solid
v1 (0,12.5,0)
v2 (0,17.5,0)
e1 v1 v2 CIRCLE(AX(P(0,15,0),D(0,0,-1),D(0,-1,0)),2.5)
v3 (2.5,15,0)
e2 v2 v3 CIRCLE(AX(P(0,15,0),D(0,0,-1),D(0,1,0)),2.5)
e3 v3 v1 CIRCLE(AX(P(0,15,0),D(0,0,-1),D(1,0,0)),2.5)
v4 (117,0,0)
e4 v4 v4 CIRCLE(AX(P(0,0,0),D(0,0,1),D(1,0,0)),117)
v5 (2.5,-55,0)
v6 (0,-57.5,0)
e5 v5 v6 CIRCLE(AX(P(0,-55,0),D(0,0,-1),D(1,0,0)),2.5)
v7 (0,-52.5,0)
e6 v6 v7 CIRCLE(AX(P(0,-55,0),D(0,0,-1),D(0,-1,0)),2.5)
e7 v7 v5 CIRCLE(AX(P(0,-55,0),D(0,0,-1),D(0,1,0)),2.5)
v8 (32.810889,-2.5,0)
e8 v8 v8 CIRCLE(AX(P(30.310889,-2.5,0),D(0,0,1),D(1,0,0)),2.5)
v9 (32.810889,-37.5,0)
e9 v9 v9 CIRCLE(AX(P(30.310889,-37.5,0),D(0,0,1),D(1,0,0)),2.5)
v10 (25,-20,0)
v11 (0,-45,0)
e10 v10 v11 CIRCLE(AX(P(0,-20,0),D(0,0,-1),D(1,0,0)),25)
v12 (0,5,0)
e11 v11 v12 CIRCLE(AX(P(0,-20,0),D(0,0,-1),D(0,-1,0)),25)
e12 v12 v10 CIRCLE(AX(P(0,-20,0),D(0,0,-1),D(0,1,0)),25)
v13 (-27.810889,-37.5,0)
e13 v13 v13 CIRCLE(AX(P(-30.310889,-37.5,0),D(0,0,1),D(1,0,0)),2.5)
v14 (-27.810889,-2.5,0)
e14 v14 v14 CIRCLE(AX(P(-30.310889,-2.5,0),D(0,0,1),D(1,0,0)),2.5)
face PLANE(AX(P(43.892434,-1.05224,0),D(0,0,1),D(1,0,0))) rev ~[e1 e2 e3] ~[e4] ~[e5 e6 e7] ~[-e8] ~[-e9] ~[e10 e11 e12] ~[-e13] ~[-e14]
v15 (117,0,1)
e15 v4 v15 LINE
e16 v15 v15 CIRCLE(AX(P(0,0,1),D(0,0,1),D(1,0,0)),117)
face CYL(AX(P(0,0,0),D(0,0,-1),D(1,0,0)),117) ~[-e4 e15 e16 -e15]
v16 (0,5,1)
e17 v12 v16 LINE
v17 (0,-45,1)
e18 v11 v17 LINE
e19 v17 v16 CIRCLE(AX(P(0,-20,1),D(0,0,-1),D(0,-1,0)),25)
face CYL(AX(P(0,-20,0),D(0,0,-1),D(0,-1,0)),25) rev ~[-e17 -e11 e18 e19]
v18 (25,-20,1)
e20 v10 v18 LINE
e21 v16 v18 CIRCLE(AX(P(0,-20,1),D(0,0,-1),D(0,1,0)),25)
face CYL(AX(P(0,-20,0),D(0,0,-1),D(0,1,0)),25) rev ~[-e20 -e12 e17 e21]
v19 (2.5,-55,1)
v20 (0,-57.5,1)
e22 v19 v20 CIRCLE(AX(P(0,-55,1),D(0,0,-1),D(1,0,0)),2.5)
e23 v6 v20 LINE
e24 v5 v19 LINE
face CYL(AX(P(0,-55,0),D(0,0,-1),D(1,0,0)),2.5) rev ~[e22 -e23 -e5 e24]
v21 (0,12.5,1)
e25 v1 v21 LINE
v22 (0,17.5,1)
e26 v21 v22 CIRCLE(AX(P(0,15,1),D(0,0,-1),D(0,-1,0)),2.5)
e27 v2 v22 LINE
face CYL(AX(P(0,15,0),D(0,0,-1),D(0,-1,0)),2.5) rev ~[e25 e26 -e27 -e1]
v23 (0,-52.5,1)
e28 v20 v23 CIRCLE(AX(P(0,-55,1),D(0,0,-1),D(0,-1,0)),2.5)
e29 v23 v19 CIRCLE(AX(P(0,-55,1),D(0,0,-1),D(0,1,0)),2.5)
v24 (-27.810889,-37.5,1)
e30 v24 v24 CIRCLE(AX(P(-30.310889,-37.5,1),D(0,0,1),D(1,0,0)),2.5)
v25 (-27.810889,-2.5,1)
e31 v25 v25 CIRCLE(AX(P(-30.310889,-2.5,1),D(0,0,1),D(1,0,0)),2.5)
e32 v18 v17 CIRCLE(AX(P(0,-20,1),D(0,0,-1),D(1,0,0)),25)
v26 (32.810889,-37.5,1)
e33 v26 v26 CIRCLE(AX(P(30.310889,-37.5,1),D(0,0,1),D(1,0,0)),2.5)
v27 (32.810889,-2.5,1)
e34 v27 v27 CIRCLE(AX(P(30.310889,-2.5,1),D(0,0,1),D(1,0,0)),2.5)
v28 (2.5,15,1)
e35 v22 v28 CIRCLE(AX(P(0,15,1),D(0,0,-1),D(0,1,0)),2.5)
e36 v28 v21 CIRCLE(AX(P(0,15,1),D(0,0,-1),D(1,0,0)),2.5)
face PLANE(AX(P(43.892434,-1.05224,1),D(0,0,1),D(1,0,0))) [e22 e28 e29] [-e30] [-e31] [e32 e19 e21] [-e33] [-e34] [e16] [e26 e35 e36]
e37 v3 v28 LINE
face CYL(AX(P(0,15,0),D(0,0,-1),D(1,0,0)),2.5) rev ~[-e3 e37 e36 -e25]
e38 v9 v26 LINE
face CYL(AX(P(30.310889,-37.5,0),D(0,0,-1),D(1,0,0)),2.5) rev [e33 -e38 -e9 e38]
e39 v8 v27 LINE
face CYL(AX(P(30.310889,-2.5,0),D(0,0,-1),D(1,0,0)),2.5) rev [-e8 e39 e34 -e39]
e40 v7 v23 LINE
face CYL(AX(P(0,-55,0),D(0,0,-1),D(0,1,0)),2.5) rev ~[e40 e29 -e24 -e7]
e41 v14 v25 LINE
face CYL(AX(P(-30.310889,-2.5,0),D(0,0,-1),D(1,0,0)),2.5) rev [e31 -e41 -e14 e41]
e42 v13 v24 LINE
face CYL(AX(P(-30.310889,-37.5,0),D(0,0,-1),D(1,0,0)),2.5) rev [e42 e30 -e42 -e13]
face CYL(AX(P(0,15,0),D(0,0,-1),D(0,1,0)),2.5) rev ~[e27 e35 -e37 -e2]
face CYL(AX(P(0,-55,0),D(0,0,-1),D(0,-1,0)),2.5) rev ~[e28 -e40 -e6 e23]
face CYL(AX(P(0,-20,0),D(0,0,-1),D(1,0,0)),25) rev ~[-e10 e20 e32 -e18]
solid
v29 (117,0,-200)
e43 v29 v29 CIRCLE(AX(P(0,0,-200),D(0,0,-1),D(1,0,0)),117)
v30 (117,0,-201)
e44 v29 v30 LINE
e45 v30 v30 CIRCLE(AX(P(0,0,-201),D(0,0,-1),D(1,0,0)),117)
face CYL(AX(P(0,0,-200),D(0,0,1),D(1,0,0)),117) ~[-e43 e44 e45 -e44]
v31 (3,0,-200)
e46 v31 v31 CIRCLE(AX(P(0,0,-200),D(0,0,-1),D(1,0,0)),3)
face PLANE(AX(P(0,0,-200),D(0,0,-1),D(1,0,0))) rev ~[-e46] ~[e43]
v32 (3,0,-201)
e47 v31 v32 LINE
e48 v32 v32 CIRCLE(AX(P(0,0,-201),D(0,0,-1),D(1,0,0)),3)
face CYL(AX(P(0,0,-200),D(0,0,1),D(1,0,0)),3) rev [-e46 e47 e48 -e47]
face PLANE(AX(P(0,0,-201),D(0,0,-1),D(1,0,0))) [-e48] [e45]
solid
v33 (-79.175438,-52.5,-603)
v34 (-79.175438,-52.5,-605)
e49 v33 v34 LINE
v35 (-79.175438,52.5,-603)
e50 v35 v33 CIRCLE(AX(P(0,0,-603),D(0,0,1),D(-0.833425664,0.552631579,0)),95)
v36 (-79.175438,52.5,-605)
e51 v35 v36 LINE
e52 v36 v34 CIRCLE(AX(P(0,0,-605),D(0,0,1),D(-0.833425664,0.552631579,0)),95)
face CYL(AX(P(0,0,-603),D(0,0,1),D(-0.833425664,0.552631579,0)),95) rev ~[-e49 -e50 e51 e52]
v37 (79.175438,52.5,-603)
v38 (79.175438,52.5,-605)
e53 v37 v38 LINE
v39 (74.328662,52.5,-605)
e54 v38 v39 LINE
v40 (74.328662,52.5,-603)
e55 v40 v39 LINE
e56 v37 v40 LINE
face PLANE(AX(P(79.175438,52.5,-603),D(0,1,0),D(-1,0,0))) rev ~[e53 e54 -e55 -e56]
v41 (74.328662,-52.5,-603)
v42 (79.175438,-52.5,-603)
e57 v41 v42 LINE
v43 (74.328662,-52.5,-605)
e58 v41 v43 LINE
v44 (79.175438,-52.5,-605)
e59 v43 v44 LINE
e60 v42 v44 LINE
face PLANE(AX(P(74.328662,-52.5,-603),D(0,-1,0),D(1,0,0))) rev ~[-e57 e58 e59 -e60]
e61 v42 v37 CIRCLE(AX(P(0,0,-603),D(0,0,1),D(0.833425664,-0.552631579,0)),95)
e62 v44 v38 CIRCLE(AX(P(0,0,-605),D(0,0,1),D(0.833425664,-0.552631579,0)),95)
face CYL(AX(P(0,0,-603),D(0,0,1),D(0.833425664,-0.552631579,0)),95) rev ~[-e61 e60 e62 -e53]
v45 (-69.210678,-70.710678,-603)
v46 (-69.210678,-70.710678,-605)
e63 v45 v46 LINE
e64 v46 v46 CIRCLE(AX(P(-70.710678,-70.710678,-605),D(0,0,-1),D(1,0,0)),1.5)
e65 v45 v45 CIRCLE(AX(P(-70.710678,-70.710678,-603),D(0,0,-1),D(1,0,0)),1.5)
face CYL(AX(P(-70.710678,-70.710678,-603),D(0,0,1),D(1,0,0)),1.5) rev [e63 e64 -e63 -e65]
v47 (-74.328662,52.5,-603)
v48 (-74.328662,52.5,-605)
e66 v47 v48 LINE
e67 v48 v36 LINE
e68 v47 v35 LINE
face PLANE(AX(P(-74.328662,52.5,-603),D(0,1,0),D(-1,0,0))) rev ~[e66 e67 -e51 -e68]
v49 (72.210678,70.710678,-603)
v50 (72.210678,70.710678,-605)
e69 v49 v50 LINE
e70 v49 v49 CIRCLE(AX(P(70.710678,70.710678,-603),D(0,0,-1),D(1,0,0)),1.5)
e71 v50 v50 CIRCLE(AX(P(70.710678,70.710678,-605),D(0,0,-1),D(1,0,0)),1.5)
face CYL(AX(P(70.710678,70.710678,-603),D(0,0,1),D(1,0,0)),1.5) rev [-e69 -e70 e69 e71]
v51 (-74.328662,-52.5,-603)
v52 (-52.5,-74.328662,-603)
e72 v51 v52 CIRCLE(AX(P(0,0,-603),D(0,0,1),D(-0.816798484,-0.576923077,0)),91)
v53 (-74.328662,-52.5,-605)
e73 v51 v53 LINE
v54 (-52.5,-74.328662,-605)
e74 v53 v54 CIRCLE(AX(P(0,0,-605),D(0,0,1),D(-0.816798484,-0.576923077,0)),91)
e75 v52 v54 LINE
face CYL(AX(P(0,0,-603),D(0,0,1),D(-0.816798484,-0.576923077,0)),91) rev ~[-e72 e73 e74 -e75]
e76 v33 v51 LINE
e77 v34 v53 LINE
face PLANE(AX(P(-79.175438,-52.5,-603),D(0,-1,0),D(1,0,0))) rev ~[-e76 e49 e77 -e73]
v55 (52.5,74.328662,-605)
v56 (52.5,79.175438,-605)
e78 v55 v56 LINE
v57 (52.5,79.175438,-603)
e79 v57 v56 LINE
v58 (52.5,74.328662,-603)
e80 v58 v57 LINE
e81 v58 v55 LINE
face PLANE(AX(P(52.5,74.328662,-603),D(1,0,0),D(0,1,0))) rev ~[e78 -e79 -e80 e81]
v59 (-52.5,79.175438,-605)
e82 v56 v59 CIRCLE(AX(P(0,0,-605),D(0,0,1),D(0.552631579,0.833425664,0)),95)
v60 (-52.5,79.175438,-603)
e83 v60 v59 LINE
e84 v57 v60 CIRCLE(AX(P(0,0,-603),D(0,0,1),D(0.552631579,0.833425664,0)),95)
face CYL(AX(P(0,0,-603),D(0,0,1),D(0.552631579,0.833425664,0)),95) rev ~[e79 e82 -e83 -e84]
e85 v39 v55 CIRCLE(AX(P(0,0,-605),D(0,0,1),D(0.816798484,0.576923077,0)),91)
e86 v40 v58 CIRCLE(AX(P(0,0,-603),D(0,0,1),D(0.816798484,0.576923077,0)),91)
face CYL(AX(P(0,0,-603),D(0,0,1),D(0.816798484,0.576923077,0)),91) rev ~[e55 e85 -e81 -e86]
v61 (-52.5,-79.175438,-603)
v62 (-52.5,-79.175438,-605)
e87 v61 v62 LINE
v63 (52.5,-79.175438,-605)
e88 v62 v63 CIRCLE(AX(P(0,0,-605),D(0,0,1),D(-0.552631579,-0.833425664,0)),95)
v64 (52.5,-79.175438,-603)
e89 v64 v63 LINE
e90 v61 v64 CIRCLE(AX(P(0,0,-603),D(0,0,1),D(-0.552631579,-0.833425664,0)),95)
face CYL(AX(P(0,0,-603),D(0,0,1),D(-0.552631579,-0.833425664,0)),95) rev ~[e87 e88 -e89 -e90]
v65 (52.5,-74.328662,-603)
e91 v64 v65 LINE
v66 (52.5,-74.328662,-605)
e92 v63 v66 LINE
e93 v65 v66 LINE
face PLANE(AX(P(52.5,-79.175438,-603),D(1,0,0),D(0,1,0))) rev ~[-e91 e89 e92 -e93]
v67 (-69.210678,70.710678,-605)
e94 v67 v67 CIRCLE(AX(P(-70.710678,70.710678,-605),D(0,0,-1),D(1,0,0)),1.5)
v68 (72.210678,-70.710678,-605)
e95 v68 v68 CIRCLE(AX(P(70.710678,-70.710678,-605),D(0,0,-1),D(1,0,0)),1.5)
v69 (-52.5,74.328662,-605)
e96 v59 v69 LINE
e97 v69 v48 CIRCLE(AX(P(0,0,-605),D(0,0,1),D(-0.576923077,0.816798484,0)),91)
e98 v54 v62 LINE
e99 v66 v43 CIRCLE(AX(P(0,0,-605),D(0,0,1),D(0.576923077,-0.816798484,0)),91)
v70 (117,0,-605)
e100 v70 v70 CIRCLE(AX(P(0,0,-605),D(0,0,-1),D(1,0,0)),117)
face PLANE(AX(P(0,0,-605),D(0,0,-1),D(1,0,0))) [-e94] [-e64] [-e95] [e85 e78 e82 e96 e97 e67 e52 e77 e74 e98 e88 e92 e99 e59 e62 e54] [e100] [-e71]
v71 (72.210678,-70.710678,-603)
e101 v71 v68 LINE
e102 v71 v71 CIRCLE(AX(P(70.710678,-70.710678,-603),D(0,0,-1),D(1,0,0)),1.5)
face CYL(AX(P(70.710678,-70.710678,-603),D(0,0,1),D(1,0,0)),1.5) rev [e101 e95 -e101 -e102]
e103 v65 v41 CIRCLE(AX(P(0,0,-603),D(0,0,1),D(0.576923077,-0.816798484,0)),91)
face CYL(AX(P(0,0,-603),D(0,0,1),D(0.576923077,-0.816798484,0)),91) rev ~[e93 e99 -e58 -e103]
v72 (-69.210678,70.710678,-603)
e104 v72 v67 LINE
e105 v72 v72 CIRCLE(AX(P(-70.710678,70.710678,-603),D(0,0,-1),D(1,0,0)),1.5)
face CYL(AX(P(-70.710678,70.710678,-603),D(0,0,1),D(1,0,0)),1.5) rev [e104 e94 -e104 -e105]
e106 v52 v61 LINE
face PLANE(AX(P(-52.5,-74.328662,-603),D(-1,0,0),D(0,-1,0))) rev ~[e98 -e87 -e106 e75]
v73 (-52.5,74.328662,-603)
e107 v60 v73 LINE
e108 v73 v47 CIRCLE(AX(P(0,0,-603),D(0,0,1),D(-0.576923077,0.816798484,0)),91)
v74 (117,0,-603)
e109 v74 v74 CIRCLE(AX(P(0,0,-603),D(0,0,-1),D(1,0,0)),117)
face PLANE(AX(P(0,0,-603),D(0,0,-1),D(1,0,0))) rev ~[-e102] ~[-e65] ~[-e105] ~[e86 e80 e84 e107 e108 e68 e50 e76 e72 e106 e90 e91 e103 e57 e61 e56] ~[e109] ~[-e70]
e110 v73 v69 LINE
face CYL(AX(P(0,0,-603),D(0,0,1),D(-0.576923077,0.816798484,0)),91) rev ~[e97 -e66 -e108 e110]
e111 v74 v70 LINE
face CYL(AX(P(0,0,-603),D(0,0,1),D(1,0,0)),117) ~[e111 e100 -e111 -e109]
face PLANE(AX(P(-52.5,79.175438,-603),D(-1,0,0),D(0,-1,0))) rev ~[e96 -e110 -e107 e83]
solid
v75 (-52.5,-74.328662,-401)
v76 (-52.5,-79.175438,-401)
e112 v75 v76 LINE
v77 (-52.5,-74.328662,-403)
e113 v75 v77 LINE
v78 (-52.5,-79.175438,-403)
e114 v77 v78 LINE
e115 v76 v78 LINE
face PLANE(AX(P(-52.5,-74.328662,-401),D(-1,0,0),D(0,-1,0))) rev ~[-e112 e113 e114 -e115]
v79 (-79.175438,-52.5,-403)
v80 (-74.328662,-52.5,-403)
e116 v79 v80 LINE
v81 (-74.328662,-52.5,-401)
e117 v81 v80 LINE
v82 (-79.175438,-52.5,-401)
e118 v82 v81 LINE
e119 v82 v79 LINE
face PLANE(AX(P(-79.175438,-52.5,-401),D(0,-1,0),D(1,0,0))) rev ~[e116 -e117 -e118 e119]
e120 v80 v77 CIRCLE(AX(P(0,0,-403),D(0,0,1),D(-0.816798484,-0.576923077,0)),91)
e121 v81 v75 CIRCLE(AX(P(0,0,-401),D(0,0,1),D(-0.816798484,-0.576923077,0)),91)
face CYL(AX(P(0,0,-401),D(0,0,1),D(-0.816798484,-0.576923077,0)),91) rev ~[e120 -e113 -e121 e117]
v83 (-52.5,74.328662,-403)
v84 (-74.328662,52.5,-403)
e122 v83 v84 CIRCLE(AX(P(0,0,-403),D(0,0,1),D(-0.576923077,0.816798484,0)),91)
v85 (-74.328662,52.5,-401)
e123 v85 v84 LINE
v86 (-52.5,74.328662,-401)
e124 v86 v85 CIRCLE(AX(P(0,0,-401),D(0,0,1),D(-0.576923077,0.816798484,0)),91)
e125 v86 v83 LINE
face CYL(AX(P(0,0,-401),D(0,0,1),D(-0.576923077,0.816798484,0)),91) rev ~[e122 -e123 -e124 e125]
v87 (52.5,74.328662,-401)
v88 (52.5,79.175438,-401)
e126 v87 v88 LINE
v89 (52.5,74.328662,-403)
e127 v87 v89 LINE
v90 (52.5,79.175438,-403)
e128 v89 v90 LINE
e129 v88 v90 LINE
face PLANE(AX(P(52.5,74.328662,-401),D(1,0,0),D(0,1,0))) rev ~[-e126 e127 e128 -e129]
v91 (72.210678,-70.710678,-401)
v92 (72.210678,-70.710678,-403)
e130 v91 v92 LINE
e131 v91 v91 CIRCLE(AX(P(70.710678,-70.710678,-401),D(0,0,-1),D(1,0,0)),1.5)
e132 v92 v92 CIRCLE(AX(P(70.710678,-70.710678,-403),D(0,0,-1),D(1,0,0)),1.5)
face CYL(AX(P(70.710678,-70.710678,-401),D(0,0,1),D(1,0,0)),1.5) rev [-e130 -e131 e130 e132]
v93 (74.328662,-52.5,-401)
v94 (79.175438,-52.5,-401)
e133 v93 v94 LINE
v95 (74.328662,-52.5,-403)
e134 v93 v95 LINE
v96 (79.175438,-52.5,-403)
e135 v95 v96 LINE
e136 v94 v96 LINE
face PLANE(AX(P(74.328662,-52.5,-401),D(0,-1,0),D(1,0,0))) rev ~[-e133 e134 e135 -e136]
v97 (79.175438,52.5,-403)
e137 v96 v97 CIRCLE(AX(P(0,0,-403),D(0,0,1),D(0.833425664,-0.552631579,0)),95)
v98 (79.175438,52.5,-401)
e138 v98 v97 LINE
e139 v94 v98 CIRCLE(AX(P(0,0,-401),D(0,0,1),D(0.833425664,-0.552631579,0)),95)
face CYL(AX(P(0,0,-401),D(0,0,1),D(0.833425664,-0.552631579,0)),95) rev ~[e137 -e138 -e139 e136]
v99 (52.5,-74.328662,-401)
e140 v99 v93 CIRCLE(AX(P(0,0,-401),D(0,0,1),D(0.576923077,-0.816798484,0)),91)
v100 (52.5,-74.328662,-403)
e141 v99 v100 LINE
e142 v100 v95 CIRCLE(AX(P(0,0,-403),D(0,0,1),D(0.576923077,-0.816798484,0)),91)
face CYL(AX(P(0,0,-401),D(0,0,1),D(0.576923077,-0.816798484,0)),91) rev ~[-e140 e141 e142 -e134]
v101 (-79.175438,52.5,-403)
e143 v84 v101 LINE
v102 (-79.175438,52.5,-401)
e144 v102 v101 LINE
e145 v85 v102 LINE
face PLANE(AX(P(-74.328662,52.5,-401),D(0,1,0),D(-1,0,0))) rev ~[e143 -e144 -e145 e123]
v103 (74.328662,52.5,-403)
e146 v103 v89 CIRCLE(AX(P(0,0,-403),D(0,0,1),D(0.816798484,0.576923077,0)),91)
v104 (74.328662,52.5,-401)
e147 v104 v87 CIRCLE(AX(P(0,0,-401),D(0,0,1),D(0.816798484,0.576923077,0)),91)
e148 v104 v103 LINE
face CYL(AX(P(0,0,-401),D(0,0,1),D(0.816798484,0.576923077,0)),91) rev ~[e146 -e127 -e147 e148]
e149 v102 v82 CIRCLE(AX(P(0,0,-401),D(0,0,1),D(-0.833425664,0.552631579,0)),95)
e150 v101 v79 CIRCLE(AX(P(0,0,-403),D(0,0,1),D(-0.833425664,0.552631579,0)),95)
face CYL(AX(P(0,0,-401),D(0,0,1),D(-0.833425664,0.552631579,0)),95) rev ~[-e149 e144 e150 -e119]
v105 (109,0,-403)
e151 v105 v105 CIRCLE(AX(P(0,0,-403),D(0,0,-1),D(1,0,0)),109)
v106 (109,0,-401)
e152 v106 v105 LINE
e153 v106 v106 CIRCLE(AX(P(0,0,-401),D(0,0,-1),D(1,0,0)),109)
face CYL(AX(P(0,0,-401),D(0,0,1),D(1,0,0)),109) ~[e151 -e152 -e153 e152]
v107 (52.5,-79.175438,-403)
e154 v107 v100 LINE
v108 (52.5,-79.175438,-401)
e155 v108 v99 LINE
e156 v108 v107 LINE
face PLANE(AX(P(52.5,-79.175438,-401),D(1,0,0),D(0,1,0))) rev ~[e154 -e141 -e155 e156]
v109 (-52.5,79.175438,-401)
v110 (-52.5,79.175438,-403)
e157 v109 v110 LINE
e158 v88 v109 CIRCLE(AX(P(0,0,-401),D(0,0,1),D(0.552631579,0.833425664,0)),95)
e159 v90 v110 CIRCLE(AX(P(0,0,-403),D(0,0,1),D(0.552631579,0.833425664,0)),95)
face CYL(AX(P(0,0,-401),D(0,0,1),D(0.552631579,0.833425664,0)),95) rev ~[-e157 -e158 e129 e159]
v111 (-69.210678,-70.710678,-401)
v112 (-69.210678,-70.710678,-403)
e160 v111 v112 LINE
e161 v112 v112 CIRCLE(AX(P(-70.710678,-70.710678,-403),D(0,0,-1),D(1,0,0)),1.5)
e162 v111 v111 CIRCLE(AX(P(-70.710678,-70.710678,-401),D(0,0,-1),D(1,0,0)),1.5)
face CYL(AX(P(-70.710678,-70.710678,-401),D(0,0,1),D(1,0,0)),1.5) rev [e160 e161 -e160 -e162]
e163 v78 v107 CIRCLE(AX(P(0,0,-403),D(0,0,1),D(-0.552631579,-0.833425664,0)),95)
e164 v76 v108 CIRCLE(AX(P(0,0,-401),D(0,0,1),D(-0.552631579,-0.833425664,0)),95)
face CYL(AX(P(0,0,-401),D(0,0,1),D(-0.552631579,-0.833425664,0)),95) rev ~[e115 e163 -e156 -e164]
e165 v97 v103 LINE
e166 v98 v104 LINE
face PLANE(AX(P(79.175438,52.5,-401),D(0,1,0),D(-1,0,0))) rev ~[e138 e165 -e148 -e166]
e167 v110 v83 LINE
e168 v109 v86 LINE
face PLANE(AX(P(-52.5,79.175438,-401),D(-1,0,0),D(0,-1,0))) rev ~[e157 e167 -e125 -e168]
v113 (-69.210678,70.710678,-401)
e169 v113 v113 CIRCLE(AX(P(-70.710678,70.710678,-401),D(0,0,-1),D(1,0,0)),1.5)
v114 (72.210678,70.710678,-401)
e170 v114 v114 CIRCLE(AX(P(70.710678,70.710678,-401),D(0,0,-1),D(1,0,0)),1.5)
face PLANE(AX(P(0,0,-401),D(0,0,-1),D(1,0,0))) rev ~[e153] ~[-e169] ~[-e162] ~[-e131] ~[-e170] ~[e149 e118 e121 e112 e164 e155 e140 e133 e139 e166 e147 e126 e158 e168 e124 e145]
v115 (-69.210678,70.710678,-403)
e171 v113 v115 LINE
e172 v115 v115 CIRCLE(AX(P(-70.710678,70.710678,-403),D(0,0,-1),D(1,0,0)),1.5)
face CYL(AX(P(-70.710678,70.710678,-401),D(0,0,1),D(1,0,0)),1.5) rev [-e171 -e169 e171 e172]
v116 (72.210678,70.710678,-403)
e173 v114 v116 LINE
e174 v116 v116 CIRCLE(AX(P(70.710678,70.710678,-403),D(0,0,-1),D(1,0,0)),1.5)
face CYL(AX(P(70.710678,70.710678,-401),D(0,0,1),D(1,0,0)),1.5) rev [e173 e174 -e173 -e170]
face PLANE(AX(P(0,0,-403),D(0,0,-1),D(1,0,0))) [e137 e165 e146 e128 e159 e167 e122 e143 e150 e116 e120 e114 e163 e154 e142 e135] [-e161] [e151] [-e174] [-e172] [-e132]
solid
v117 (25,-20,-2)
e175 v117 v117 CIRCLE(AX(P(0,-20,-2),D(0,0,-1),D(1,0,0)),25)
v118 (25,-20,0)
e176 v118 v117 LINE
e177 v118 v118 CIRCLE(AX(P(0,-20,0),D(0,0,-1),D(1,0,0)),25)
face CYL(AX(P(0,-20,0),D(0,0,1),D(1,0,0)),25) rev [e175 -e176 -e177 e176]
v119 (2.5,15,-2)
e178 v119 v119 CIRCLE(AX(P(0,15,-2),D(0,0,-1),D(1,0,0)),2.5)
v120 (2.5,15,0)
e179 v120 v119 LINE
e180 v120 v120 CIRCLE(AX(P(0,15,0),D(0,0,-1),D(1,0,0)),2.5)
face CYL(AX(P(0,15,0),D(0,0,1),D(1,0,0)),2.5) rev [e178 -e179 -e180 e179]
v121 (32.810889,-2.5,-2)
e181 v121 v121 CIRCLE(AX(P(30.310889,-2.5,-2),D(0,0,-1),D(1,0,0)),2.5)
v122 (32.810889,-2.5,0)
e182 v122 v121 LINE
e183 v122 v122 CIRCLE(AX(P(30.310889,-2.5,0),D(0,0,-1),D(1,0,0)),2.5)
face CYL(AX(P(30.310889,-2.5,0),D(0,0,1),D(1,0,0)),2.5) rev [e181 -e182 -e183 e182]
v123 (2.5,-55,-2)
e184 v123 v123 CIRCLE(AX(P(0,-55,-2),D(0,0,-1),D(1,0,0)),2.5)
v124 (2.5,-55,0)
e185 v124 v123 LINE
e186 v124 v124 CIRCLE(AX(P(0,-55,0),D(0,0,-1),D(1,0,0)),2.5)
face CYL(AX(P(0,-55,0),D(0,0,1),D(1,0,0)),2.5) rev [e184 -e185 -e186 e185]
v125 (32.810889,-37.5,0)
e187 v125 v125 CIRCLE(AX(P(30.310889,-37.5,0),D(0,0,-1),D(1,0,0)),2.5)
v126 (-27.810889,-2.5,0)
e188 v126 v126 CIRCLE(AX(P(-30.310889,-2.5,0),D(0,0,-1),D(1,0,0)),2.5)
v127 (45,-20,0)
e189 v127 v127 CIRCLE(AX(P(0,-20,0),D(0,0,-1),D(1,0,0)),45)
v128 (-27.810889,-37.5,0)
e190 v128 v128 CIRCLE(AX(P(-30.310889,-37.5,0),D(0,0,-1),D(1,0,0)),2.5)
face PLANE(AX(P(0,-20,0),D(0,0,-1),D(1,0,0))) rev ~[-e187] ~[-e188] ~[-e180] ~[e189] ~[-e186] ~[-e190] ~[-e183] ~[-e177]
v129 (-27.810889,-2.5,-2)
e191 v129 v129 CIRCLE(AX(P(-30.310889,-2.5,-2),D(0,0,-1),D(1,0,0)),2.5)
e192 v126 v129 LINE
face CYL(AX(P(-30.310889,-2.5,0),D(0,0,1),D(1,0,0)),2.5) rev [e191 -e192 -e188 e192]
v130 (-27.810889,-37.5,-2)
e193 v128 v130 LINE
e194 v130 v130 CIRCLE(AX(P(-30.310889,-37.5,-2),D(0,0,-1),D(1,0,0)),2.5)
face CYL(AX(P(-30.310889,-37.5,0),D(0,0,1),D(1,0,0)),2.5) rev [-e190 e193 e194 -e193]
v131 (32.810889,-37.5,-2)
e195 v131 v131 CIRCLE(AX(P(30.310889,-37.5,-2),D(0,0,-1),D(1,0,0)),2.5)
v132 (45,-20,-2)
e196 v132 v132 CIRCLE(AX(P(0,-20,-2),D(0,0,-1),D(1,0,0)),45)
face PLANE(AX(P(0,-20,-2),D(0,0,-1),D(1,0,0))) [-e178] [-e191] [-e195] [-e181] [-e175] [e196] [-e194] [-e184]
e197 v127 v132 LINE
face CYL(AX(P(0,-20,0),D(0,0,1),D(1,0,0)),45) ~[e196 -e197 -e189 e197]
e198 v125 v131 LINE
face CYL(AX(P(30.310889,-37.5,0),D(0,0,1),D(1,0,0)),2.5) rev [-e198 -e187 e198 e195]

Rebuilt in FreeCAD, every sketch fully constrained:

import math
import FreeCAD as App
import Part
import Sketcher
from FreeCAD import Vector
Q = App.Units.Quantity

doc = App.newDocument("Part")
body = doc.addObject("PartDesign::Body", "Body")

# Sketch on XY plane
sketch1 = body.newObject("Sketcher::SketchObject", "Sketch")
sketch1.AttachmentSupport = (doc.getObject("XY_Plane"), [""])
sketch1.MapMode = "FlatFace"
sketch1.addGeometry(Part.Circle(Vector(0, 0, 0), Vector(0, 0, 1), 117), False)
sketch1.addGeometry(Part.Circle(Vector(-30.3, -37.5, 0), Vector(0, 0, 1), 2.5), False)
sketch1.addGeometry(Part.ArcOfCircle(Part.Circle(Vector(0, -55, 0), Vector(0, 0, 1), 2.5), math.radians(-90), math.radians(0)), False)
sketch1.addGeometry(Part.ArcOfCircle(Part.Circle(Vector(0, -55, 0), Vector(0, 0, 1), 2.5), math.radians(90), math.radians(270)), False)
sketch1.addGeometry(Part.ArcOfCircle(Part.Circle(Vector(0, -55, 0), Vector(0, 0, 1), 2.5), math.radians(0), math.radians(90)), False)
sketch1.addGeometry(Part.Circle(Vector(30.3, -37.5, 0), Vector(0, 0, 1), 2.5), False)
sketch1.addGeometry(Part.Circle(Vector(-30.3, -2.5, 0), Vector(0, 0, 1), 2.5), False)
sketch1.addGeometry(Part.ArcOfCircle(Part.Circle(Vector(0, -20, 0), Vector(0, 0, 1), 25), math.radians(-90), math.radians(0)), False)
sketch1.addGeometry(Part.ArcOfCircle(Part.Circle(Vector(0, -20, 0), Vector(0, 0, 1), 25), math.radians(90), math.radians(270)), False)
sketch1.addGeometry(Part.ArcOfCircle(Part.Circle(Vector(0, -20, 0), Vector(0, 0, 1), 25), math.radians(0), math.radians(90)), False)
sketch1.addGeometry(Part.Circle(Vector(30.3, -2.5, 0), Vector(0, 0, 1), 2.5), False)
sketch1.addGeometry(Part.ArcOfCircle(Part.Circle(Vector(0, 15, 0), Vector(0, 0, 1), 2.5), math.radians(-90), math.radians(0)), False)
sketch1.addGeometry(Part.ArcOfCircle(Part.Circle(Vector(0, 15, 0), Vector(0, 0, 1), 2.5), math.radians(90), math.radians(270)), False)
sketch1.addGeometry(Part.ArcOfCircle(Part.Circle(Vector(0, 15, 0), Vector(0, 0, 1), 2.5), math.radians(0), math.radians(90)), False)
sketch1.addConstraint(Sketcher.Constraint("Tangent", 2, 1, 3, 2))
sketch1.addConstraint(Sketcher.Constraint("Tangent", 3, 1, 4, 2))
sketch1.addConstraint(Sketcher.Constraint("Tangent", 4, 1, 2, 2))
sketch1.addConstraint(Sketcher.Constraint("Tangent", 7, 1, 8, 2))
sketch1.addConstraint(Sketcher.Constraint("Tangent", 8, 1, 9, 2))
sketch1.addConstraint(Sketcher.Constraint("Tangent", 9, 1, 7, 2))
sketch1.addConstraint(Sketcher.Constraint("Tangent", 11, 1, 12, 2))
sketch1.addConstraint(Sketcher.Constraint("Tangent", 12, 1, 13, 2))
sketch1.addConstraint(Sketcher.Constraint("Tangent", 13, 1, 11, 2))
sketch1.addConstraint(Sketcher.Constraint("Coincident", 0, 3, -1, 1))
sketch1.addConstraint(Sketcher.Constraint("Equal", 1, 2))
sketch1.addConstraint(Sketcher.Constraint("Equal", 4, 5))
sketch1.addConstraint(Sketcher.Constraint("Equal", 5, 6))
sketch1.addConstraint(Sketcher.Constraint("Equal", 6, 10))
sketch1.addConstraint(Sketcher.Constraint("Equal", 10, 11))
sketch1.addConstraint(Sketcher.Constraint("Symmetric", 1, 3, 5, 3, -2))
sketch1.addConstraint(Sketcher.Constraint("Symmetric", 6, 3, 10, 3, -2))
sketch1.addConstraint(Sketcher.Constraint("PointOnObject", 2, 3, -2))
sketch1.addConstraint(Sketcher.Constraint("PointOnObject", 7, 3, -2))
sketch1.addConstraint(Sketcher.Constraint("PointOnObject", 11, 3, -2))
sketch1.addConstraint(Sketcher.Constraint("PointOnObject", 2, 1, -2))
sketch1.addConstraint(Sketcher.Constraint("PointOnObject", 3, 1, -2))
sketch1.addConstraint(Sketcher.Constraint("PointOnObject", 7, 1, -2))
sketch1.addConstraint(Sketcher.Constraint("PointOnObject", 8, 1, -2))
sketch1.addConstraint(Sketcher.Constraint("PointOnObject", 11, 1, -2))
sketch1.addConstraint(Sketcher.Constraint("PointOnObject", 12, 1, -2))
sketch1.addConstraint(Sketcher.Constraint("Horizontal", 3, 3, 4, 1))
sketch1.addConstraint(Sketcher.Constraint("Horizontal", 8, 3, 9, 1))
sketch1.addConstraint(Sketcher.Constraint("Horizontal", 12, 3, 13, 1))
sketch1.addConstraint(Sketcher.Constraint("Vertical", 1, 3, 6, 3))
sketch1.addConstraint(Sketcher.Constraint("Diameter", 0, Q("234 mm")))
sketch1.addConstraint(Sketcher.Constraint("Diameter", 1, Q("5 mm")))
sketch1.addConstraint(Sketcher.Constraint("Radius", 7, Q("25 mm")))
sketch1.addConstraint(Sketcher.Constraint("DistanceY", 2, 3, -1, 1, Q("55 mm")))
sketch1.addConstraint(Sketcher.Constraint("DistanceY", 7, 3, -1, 1, Q("20 mm")))
sketch1.addConstraint(Sketcher.Constraint("DistanceY", -1, 1, 11, 3, Q("15 mm")))
sketch1.addConstraint(Sketcher.Constraint("DistanceY", 1, 3, 6, 3, Q("35 mm")))
sketch1.addConstraint(Sketcher.Constraint("DistanceY", 2, 1, 1, 3, Q("20 mm")))
sketch1.addConstraint(Sketcher.Constraint("DistanceX", 1, 3, -1, 1, Q("30.310889 mm")))
pad1 = body.newObject("PartDesign::Pad", "Pad")
pad1.Profile = sketch1
pad1.Length = 1
body2 = doc.addObject("PartDesign::Body", "Body001")

# Sketch on XY plane
sketch2 = body2.newObject("Sketcher::SketchObject", "Sketch001")
sketch2.AttachmentSupport = (doc.getObject("XY_Plane001"), [""])
sketch2.MapMode = "FlatFace"
sketch2.addGeometry(Part.Circle(Vector(0, -20, 0), Vector(0, 0, 1), 45), False)
sketch2.addGeometry(Part.Circle(Vector(0, 15, 0), Vector(0, 0, 1), 2.5), False)
sketch2.addGeometry(Part.Circle(Vector(-30.3, -2.5, 0), Vector(0, 0, 1), 2.5), False)
sketch2.addGeometry(Part.Circle(Vector(30.3, -2.5, 0), Vector(0, 0, 1), 2.5), False)
sketch2.addGeometry(Part.Circle(Vector(-30.3, -37.5, 0), Vector(0, 0, 1), 2.5), False)
sketch2.addGeometry(Part.Circle(Vector(0, -20, 0), Vector(0, 0, 1), 25), False)
sketch2.addGeometry(Part.Circle(Vector(0, -55, 0), Vector(0, 0, 1), 2.5), False)
sketch2.addGeometry(Part.Circle(Vector(30.3, -37.5, 0), Vector(0, 0, 1), 2.5), False)
sketch2.addConstraint(Sketcher.Constraint("Coincident", 5, 3, 0, 3))
sketch2.addConstraint(Sketcher.Constraint("Equal", 1, 2))
sketch2.addConstraint(Sketcher.Constraint("Equal", 2, 3))
sketch2.addConstraint(Sketcher.Constraint("Equal", 3, 4))
sketch2.addConstraint(Sketcher.Constraint("Equal", 4, 6))
sketch2.addConstraint(Sketcher.Constraint("Equal", 6, 7))
sketch2.addConstraint(Sketcher.Constraint("Symmetric", 2, 3, 3, 3, -2))
sketch2.addConstraint(Sketcher.Constraint("Symmetric", 4, 3, 7, 3, -2))
sketch2.addConstraint(Sketcher.Constraint("PointOnObject", 0, 3, -2))
sketch2.addConstraint(Sketcher.Constraint("PointOnObject", 1, 3, -2))
sketch2.addConstraint(Sketcher.Constraint("PointOnObject", 6, 3, -2))
sketch2.addConstraint(Sketcher.Constraint("Vertical", 2, 3, 4, 3))
sketch2.addConstraint(Sketcher.Constraint("Diameter", 0, Q("90 mm")))
sketch2.addConstraint(Sketcher.Constraint("Diameter", 1, Q("5 mm")))
sketch2.addConstraint(Sketcher.Constraint("Diameter", 5, Q("50 mm")))
sketch2.addConstraint(Sketcher.Constraint("DistanceY", 0, 3, -1, 1, Q("20 mm")))
sketch2.addConstraint(Sketcher.Constraint("DistanceY", -1, 1, 1, 3, Q("15 mm")))
sketch2.addConstraint(Sketcher.Constraint("DistanceY", 6, 3, -1, 1, Q("55 mm")))
sketch2.addConstraint(Sketcher.Constraint("DistanceY", 4, 3, 2, 3, Q("35 mm")))
sketch2.addConstraint(Sketcher.Constraint("DistanceY", 2, 3, -1, 1, Q("2.5 mm")))
sketch2.addConstraint(Sketcher.Constraint("DistanceX", 2, 3, -1, 1, Q("30.310889 mm")))
pad2 = body2.newObject("PartDesign::Pad", "Pad001")
pad2.Profile = sketch2
pad2.Length = 2
pad2.Reversed = True
body3 = doc.addObject("PartDesign::Body", "Body002")

# Sketch on XY plane
sketch3 = body3.newObject("Sketcher::SketchObject", "Sketch002")
sketch3.AttachmentSupport = (doc.getObject("XY_Plane002"), [""])
sketch3.MapMode = "FlatFace"
sketch3.AttachmentOffset = App.Placement(Vector(0, 0, -200), App.Rotation())
sketch3.addGeometry(Part.Circle(Vector(0, 0, 0), Vector(0, 0, 1), 117), False)
sketch3.addGeometry(Part.Circle(Vector(0, 0, 0), Vector(0, 0, 1), 3), False)
sketch3.addConstraint(Sketcher.Constraint("Coincident", 0, 3, -1, 1))
sketch3.addConstraint(Sketcher.Constraint("Coincident", 1, 3, -1, 1))
sketch3.addConstraint(Sketcher.Constraint("Diameter", 0, Q("234 mm")))
sketch3.addConstraint(Sketcher.Constraint("Diameter", 1, Q("6 mm")))
pad3 = body3.newObject("PartDesign::Pad", "Pad002")
pad3.Profile = sketch3
pad3.Length = 1
pad3.Reversed = True
body4 = doc.addObject("PartDesign::Body", "Body003")

# Sketch on XY plane
sketch4 = body4.newObject("Sketcher::SketchObject", "Sketch003")
sketch4.AttachmentSupport = (doc.getObject("XY_Plane003"), [""])
sketch4.MapMode = "FlatFace"
sketch4.AttachmentOffset = App.Placement(Vector(0, 0, -401), App.Rotation())
sketch4.addGeometry(Part.Circle(Vector(0, 0, 0), Vector(0, 0, 1), 109), False)
sketch4.addGeometry(Part.Circle(Vector(-70.7, 70.7, 0), Vector(0, 0, 1), 1.5), False)
sketch4.addGeometry(Part.Circle(Vector(70.7, 70.7, 0), Vector(0, 0, 1), 1.5), False)
sketch4.addGeometry(Part.Circle(Vector(-70.7, -70.7, 0), Vector(0, 0, 1), 1.5), False)
sketch4.addGeometry(Part.LineSegment(Vector(-52.5, 79.2, 0), Vector(-52.5, 74.3, 0)), False)
sketch4.addGeometry(Part.ArcOfCircle(Part.Circle(Vector(0, 0, 0), Vector(0, 0, 1), 91), math.radians(125.23), math.radians(144.77)), False)
sketch4.addGeometry(Part.LineSegment(Vector(-74.3, 52.5, 0), Vector(-79.2, 52.5, 0)), False)
sketch4.addGeometry(Part.ArcOfCircle(Part.Circle(Vector(0, 0, 0), Vector(0, 0, 1), 95), math.radians(146), math.radians(214)), False)
sketch4.addGeometry(Part.LineSegment(Vector(-79.2, -52.5, 0), Vector(-74.3, -52.5, 0)), False)
sketch4.addGeometry(Part.ArcOfCircle(Part.Circle(Vector(0, 0, 0), Vector(0, 0, 1), 91), math.radians(-144.77), math.radians(-125.23)), False)
sketch4.addGeometry(Part.LineSegment(Vector(-52.5, -74.3, 0), Vector(-52.5, -79.2, 0)), False)
sketch4.addGeometry(Part.ArcOfCircle(Part.Circle(Vector(0, 0, 0), Vector(0, 0, 1), 95), math.radians(-124), math.radians(-56)), False)
sketch4.addGeometry(Part.LineSegment(Vector(52.5, -79.2, 0), Vector(52.5, -74.3, 0)), False)
sketch4.addGeometry(Part.ArcOfCircle(Part.Circle(Vector(0, 0, 0), Vector(0, 0, 1), 91), math.radians(-54.77), math.radians(-35.23)), False)
sketch4.addGeometry(Part.LineSegment(Vector(74.3, -52.5, 0), Vector(79.2, -52.5, 0)), False)
sketch4.addGeometry(Part.ArcOfCircle(Part.Circle(Vector(0, 0, 0), Vector(0, 0, 1), 95), math.radians(-34), math.radians(34)), False)
sketch4.addGeometry(Part.LineSegment(Vector(79.2, 52.5, 0), Vector(74.3, 52.5, 0)), False)
sketch4.addGeometry(Part.ArcOfCircle(Part.Circle(Vector(0, 0, 0), Vector(0, 0, 1), 91), math.radians(35.23), math.radians(54.77)), False)
sketch4.addGeometry(Part.LineSegment(Vector(52.5, 74.3, 0), Vector(52.5, 79.2, 0)), False)
sketch4.addGeometry(Part.ArcOfCircle(Part.Circle(Vector(0, 0, 0), Vector(0, 0, 1), 95), math.radians(56), math.radians(124)), False)
sketch4.addGeometry(Part.Circle(Vector(70.7, -70.7, 0), Vector(0, 0, 1), 1.5), False)
sketch4.addConstraint(Sketcher.Constraint("Coincident", 4, 2, 5, 1))
sketch4.addConstraint(Sketcher.Constraint("Coincident", 5, 2, 6, 1))
sketch4.addConstraint(Sketcher.Constraint("Coincident", 6, 2, 7, 1))
sketch4.addConstraint(Sketcher.Constraint("Coincident", 7, 2, 8, 1))
sketch4.addConstraint(Sketcher.Constraint("Coincident", 8, 2, 9, 1))
sketch4.addConstraint(Sketcher.Constraint("Coincident", 9, 2, 10, 1))
sketch4.addConstraint(Sketcher.Constraint("Coincident", 10, 2, 11, 1))
sketch4.addConstraint(Sketcher.Constraint("Coincident", 11, 2, 12, 1))
sketch4.addConstraint(Sketcher.Constraint("Coincident", 12, 2, 13, 1))
sketch4.addConstraint(Sketcher.Constraint("Coincident", 13, 2, 14, 1))
sketch4.addConstraint(Sketcher.Constraint("Coincident", 14, 2, 15, 1))
sketch4.addConstraint(Sketcher.Constraint("Coincident", 15, 2, 16, 1))
sketch4.addConstraint(Sketcher.Constraint("Coincident", 16, 2, 17, 1))
sketch4.addConstraint(Sketcher.Constraint("Coincident", 17, 2, 18, 1))
sketch4.addConstraint(Sketcher.Constraint("Coincident", 18, 2, 19, 1))
sketch4.addConstraint(Sketcher.Constraint("Coincident", 19, 2, 4, 1))
sketch4.addConstraint(Sketcher.Constraint("Vertical", 4))
sketch4.addConstraint(Sketcher.Constraint("Horizontal", 6))
sketch4.addConstraint(Sketcher.Constraint("Horizontal", 8))
sketch4.addConstraint(Sketcher.Constraint("Vertical", 10))
sketch4.addConstraint(Sketcher.Constraint("Vertical", 12))
sketch4.addConstraint(Sketcher.Constraint("Horizontal", 14))
sketch4.addConstraint(Sketcher.Constraint("Horizontal", 16))
sketch4.addConstraint(Sketcher.Constraint("Vertical", 18))
sketch4.addConstraint(Sketcher.Constraint("Coincident", 0, 3, -1, 1))
sketch4.addConstraint(Sketcher.Constraint("Coincident", 5, 3, -1, 1))
sketch4.addConstraint(Sketcher.Constraint("Coincident", 7, 3, -1, 1))
sketch4.addConstraint(Sketcher.Constraint("Coincident", 9, 3, -1, 1))
sketch4.addConstraint(Sketcher.Constraint("Coincident", 11, 3, -1, 1))
sketch4.addConstraint(Sketcher.Constraint("Coincident", 13, 3, -1, 1))
sketch4.addConstraint(Sketcher.Constraint("Coincident", 15, 3, -1, 1))
sketch4.addConstraint(Sketcher.Constraint("Coincident", 17, 3, -1, 1))
sketch4.addConstraint(Sketcher.Constraint("Coincident", 19, 3, -1, 1))
sketch4.addConstraint(Sketcher.Constraint("Equal", 1, 2))
sketch4.addConstraint(Sketcher.Constraint("Equal", 2, 3))
sketch4.addConstraint(Sketcher.Constraint("Equal", 5, 9))
sketch4.addConstraint(Sketcher.Constraint("Equal", 7, 11))
sketch4.addConstraint(Sketcher.Constraint("Equal", 9, 13))
sketch4.addConstraint(Sketcher.Constraint("Equal", 11, 15))
sketch4.addConstraint(Sketcher.Constraint("Equal", 13, 17))
sketch4.addConstraint(Sketcher.Constraint("Equal", 15, 19))
sketch4.addConstraint(Sketcher.Constraint("Equal", 3, 20))
sketch4.addConstraint(Sketcher.Constraint("Symmetric", 2, 3, 3, 3, -1, 1))
sketch4.addConstraint(Sketcher.Constraint("Symmetric", 1, 3, 20, 3, -1, 1))
sketch4.addConstraint(Sketcher.Constraint("Symmetric", 1, 3, 2, 3, -2))
sketch4.addConstraint(Sketcher.Constraint("Horizontal", 10, 2, 11, 2))
sketch4.addConstraint(Sketcher.Constraint("Horizontal", 8, 2, 13, 2))
sketch4.addConstraint(Sketcher.Constraint("Horizontal", 6, 2, 15, 2))
sketch4.addConstraint(Sketcher.Constraint("Horizontal", 4, 2, 17, 2))
sketch4.addConstraint(Sketcher.Constraint("Vertical", 6, 2, 7, 2))
sketch4.addConstraint(Sketcher.Constraint("Vertical", 4, 2, 9, 2))
sketch4.addConstraint(Sketcher.Constraint("Equal", 16, 4))
sketch4.addConstraint(Sketcher.Constraint("Diameter", 0, Q("218 mm")))
sketch4.addConstraint(Sketcher.Constraint("Diameter", 1, Q("3 mm")))
sketch4.addConstraint(Sketcher.Constraint("Radius", 5, Q("91 mm")))
sketch4.addConstraint(Sketcher.Constraint("Radius", 7, Q("95 mm")))
sketch4.addConstraint(Sketcher.Constraint("DistanceX", 4, 2, -1, 1, Q("52.5 mm")))
sketch4.addConstraint(Sketcher.Constraint("DistanceX", 1, 3, -1, 1, Q("70.710678 mm")))
sketch4.addConstraint(Sketcher.Constraint("DistanceY", -1, 1, 1, 3, Q("70.710678 mm")))
pad4 = body4.newObject("PartDesign::Pad", "Pad003")
pad4.Profile = sketch4
pad4.Length = 2
pad4.Reversed = True
body5 = doc.addObject("PartDesign::Body", "Body004")

# Sketch on XY plane
sketch5 = body5.newObject("Sketcher::SketchObject", "Sketch004")
sketch5.AttachmentSupport = (doc.getObject("XY_Plane004"), [""])
sketch5.MapMode = "FlatFace"
sketch5.AttachmentOffset = App.Placement(Vector(0, 0, -603), App.Rotation())
sketch5.addGeometry(Part.Circle(Vector(0, 0, 0), Vector(0, 0, 1), 117), False)
sketch5.addGeometry(Part.Circle(Vector(-70.7, 70.7, 0), Vector(0, 0, 1), 1.5), False)
sketch5.addGeometry(Part.Circle(Vector(70.7, 70.7, 0), Vector(0, 0, 1), 1.5), False)
sketch5.addGeometry(Part.Circle(Vector(-70.7, -70.7, 0), Vector(0, 0, 1), 1.5), False)
sketch5.addGeometry(Part.LineSegment(Vector(-74.3, 52.5, 0), Vector(-79.2, 52.5, 0)), False)
sketch5.addGeometry(Part.ArcOfCircle(Part.Circle(Vector(0, 0, 0), Vector(0, 0, 1), 95), math.radians(146), math.radians(214)), False)
sketch5.addGeometry(Part.LineSegment(Vector(-79.2, -52.5, 0), Vector(-74.3, -52.5, 0)), False)
sketch5.addGeometry(Part.ArcOfCircle(Part.Circle(Vector(0, 0, 0), Vector(0, 0, 1), 91), math.radians(-144.77), math.radians(-125.23)), False)
sketch5.addGeometry(Part.LineSegment(Vector(-52.5, -74.3, 0), Vector(-52.5, -79.2, 0)), False)
sketch5.addGeometry(Part.ArcOfCircle(Part.Circle(Vector(0, 0, 0), Vector(0, 0, 1), 95), math.radians(-124), math.radians(-56)), False)
sketch5.addGeometry(Part.LineSegment(Vector(52.5, -79.2, 0), Vector(52.5, -74.3, 0)), False)
sketch5.addGeometry(Part.ArcOfCircle(Part.Circle(Vector(0, 0, 0), Vector(0, 0, 1), 91), math.radians(-54.77), math.radians(-35.23)), False)
sketch5.addGeometry(Part.LineSegment(Vector(74.3, -52.5, 0), Vector(79.2, -52.5, 0)), False)
sketch5.addGeometry(Part.ArcOfCircle(Part.Circle(Vector(0, 0, 0), Vector(0, 0, 1), 95), math.radians(-34), math.radians(34)), False)
sketch5.addGeometry(Part.LineSegment(Vector(79.2, 52.5, 0), Vector(74.3, 52.5, 0)), False)
sketch5.addGeometry(Part.ArcOfCircle(Part.Circle(Vector(0, 0, 0), Vector(0, 0, 1), 91), math.radians(35.23), math.radians(54.77)), False)
sketch5.addGeometry(Part.LineSegment(Vector(52.5, 74.3, 0), Vector(52.5, 79.2, 0)), False)
sketch5.addGeometry(Part.ArcOfCircle(Part.Circle(Vector(0, 0, 0), Vector(0, 0, 1), 95), math.radians(56), math.radians(124)), False)
sketch5.addGeometry(Part.LineSegment(Vector(-52.5, 79.2, 0), Vector(-52.5, 74.3, 0)), False)
sketch5.addGeometry(Part.ArcOfCircle(Part.Circle(Vector(0, 0, 0), Vector(0, 0, 1), 91), math.radians(125.23), math.radians(144.77)), False)
sketch5.addGeometry(Part.Circle(Vector(70.7, -70.7, 0), Vector(0, 0, 1), 1.5), False)
sketch5.addConstraint(Sketcher.Constraint("Coincident", 4, 2, 5, 1))
sketch5.addConstraint(Sketcher.Constraint("Coincident", 5, 2, 6, 1))
sketch5.addConstraint(Sketcher.Constraint("Coincident", 6, 2, 7, 1))
sketch5.addConstraint(Sketcher.Constraint("Coincident", 7, 2, 8, 1))
sketch5.addConstraint(Sketcher.Constraint("Coincident", 8, 2, 9, 1))
sketch5.addConstraint(Sketcher.Constraint("Coincident", 9, 2, 10, 1))
sketch5.addConstraint(Sketcher.Constraint("Coincident", 10, 2, 11, 1))
sketch5.addConstraint(Sketcher.Constraint("Coincident", 11, 2, 12, 1))
sketch5.addConstraint(Sketcher.Constraint("Coincident", 12, 2, 13, 1))
sketch5.addConstraint(Sketcher.Constraint("Coincident", 13, 2, 14, 1))
sketch5.addConstraint(Sketcher.Constraint("Coincident", 14, 2, 15, 1))
sketch5.addConstraint(Sketcher.Constraint("Coincident", 15, 2, 16, 1))
sketch5.addConstraint(Sketcher.Constraint("Coincident", 16, 2, 17, 1))
sketch5.addConstraint(Sketcher.Constraint("Coincident", 17, 2, 18, 1))
sketch5.addConstraint(Sketcher.Constraint("Coincident", 18, 2, 19, 1))
sketch5.addConstraint(Sketcher.Constraint("Coincident", 19, 2, 4, 1))
sketch5.addConstraint(Sketcher.Constraint("Horizontal", 4))
sketch5.addConstraint(Sketcher.Constraint("Horizontal", 6))
sketch5.addConstraint(Sketcher.Constraint("Vertical", 8))
sketch5.addConstraint(Sketcher.Constraint("Vertical", 10))
sketch5.addConstraint(Sketcher.Constraint("Horizontal", 12))
sketch5.addConstraint(Sketcher.Constraint("Horizontal", 14))
sketch5.addConstraint(Sketcher.Constraint("Vertical", 16))
sketch5.addConstraint(Sketcher.Constraint("Vertical", 18))
sketch5.addConstraint(Sketcher.Constraint("Coincident", 0, 3, -1, 1))
sketch5.addConstraint(Sketcher.Constraint("Coincident", 5, 3, -1, 1))
sketch5.addConstraint(Sketcher.Constraint("Coincident", 7, 3, -1, 1))
sketch5.addConstraint(Sketcher.Constraint("Coincident", 9, 3, -1, 1))
sketch5.addConstraint(Sketcher.Constraint("Coincident", 11, 3, -1, 1))
sketch5.addConstraint(Sketcher.Constraint("Coincident", 13, 3, -1, 1))
sketch5.addConstraint(Sketcher.Constraint("Coincident", 15, 3, -1, 1))
sketch5.addConstraint(Sketcher.Constraint("Coincident", 17, 3, -1, 1))
sketch5.addConstraint(Sketcher.Constraint("Coincident", 19, 3, -1, 1))
sketch5.addConstraint(Sketcher.Constraint("Equal", 1, 2))
sketch5.addConstraint(Sketcher.Constraint("Equal", 2, 3))
sketch5.addConstraint(Sketcher.Constraint("Equal", 5, 9))
sketch5.addConstraint(Sketcher.Constraint("Equal", 7, 11))
sketch5.addConstraint(Sketcher.Constraint("Equal", 9, 13))
sketch5.addConstraint(Sketcher.Constraint("Equal", 11, 15))
sketch5.addConstraint(Sketcher.Constraint("Equal", 13, 17))
sketch5.addConstraint(Sketcher.Constraint("Equal", 15, 19))
sketch5.addConstraint(Sketcher.Constraint("Equal", 3, 20))
sketch5.addConstraint(Sketcher.Constraint("Symmetric", 2, 3, 3, 3, -1, 1))
sketch5.addConstraint(Sketcher.Constraint("Symmetric", 1, 3, 20, 3, -1, 1))
sketch5.addConstraint(Sketcher.Constraint("Symmetric", 1, 3, 2, 3, -2))
sketch5.addConstraint(Sketcher.Constraint("Horizontal", 8, 2, 9, 2))
sketch5.addConstraint(Sketcher.Constraint("Horizontal", 6, 2, 11, 2))
sketch5.addConstraint(Sketcher.Constraint("Horizontal", 4, 2, 13, 2))
sketch5.addConstraint(Sketcher.Constraint("Horizontal", 16, 2, 17, 2))
sketch5.addConstraint(Sketcher.Constraint("Vertical", 4, 2, 5, 2))
sketch5.addConstraint(Sketcher.Constraint("Vertical", 10, 2, 15, 2))
sketch5.addConstraint(Sketcher.Constraint("Equal", 14, 8))
sketch5.addConstraint(Sketcher.Constraint("Diameter", 0, Q("234 mm")))
sketch5.addConstraint(Sketcher.Constraint("Diameter", 1, Q("3 mm")))
sketch5.addConstraint(Sketcher.Constraint("Radius", 5, Q("95 mm")))
sketch5.addConstraint(Sketcher.Constraint("Radius", 7, Q("91 mm")))
sketch5.addConstraint(Sketcher.Constraint("DistanceY", -1, 1, 4, 2, Q("52.5 mm")))
sketch5.addConstraint(Sketcher.Constraint("DistanceX", 1, 3, -1, 1, Q("70.710678 mm")))
sketch5.addConstraint(Sketcher.Constraint("DistanceY", -1, 1, 1, 3, Q("70.710678 mm")))
pad5 = body5.newObject("PartDesign::Pad", "Pad004")
pad5.Profile = sketch5
pad5.Length = 2
pad5.Reversed = True

doc.recompute()
